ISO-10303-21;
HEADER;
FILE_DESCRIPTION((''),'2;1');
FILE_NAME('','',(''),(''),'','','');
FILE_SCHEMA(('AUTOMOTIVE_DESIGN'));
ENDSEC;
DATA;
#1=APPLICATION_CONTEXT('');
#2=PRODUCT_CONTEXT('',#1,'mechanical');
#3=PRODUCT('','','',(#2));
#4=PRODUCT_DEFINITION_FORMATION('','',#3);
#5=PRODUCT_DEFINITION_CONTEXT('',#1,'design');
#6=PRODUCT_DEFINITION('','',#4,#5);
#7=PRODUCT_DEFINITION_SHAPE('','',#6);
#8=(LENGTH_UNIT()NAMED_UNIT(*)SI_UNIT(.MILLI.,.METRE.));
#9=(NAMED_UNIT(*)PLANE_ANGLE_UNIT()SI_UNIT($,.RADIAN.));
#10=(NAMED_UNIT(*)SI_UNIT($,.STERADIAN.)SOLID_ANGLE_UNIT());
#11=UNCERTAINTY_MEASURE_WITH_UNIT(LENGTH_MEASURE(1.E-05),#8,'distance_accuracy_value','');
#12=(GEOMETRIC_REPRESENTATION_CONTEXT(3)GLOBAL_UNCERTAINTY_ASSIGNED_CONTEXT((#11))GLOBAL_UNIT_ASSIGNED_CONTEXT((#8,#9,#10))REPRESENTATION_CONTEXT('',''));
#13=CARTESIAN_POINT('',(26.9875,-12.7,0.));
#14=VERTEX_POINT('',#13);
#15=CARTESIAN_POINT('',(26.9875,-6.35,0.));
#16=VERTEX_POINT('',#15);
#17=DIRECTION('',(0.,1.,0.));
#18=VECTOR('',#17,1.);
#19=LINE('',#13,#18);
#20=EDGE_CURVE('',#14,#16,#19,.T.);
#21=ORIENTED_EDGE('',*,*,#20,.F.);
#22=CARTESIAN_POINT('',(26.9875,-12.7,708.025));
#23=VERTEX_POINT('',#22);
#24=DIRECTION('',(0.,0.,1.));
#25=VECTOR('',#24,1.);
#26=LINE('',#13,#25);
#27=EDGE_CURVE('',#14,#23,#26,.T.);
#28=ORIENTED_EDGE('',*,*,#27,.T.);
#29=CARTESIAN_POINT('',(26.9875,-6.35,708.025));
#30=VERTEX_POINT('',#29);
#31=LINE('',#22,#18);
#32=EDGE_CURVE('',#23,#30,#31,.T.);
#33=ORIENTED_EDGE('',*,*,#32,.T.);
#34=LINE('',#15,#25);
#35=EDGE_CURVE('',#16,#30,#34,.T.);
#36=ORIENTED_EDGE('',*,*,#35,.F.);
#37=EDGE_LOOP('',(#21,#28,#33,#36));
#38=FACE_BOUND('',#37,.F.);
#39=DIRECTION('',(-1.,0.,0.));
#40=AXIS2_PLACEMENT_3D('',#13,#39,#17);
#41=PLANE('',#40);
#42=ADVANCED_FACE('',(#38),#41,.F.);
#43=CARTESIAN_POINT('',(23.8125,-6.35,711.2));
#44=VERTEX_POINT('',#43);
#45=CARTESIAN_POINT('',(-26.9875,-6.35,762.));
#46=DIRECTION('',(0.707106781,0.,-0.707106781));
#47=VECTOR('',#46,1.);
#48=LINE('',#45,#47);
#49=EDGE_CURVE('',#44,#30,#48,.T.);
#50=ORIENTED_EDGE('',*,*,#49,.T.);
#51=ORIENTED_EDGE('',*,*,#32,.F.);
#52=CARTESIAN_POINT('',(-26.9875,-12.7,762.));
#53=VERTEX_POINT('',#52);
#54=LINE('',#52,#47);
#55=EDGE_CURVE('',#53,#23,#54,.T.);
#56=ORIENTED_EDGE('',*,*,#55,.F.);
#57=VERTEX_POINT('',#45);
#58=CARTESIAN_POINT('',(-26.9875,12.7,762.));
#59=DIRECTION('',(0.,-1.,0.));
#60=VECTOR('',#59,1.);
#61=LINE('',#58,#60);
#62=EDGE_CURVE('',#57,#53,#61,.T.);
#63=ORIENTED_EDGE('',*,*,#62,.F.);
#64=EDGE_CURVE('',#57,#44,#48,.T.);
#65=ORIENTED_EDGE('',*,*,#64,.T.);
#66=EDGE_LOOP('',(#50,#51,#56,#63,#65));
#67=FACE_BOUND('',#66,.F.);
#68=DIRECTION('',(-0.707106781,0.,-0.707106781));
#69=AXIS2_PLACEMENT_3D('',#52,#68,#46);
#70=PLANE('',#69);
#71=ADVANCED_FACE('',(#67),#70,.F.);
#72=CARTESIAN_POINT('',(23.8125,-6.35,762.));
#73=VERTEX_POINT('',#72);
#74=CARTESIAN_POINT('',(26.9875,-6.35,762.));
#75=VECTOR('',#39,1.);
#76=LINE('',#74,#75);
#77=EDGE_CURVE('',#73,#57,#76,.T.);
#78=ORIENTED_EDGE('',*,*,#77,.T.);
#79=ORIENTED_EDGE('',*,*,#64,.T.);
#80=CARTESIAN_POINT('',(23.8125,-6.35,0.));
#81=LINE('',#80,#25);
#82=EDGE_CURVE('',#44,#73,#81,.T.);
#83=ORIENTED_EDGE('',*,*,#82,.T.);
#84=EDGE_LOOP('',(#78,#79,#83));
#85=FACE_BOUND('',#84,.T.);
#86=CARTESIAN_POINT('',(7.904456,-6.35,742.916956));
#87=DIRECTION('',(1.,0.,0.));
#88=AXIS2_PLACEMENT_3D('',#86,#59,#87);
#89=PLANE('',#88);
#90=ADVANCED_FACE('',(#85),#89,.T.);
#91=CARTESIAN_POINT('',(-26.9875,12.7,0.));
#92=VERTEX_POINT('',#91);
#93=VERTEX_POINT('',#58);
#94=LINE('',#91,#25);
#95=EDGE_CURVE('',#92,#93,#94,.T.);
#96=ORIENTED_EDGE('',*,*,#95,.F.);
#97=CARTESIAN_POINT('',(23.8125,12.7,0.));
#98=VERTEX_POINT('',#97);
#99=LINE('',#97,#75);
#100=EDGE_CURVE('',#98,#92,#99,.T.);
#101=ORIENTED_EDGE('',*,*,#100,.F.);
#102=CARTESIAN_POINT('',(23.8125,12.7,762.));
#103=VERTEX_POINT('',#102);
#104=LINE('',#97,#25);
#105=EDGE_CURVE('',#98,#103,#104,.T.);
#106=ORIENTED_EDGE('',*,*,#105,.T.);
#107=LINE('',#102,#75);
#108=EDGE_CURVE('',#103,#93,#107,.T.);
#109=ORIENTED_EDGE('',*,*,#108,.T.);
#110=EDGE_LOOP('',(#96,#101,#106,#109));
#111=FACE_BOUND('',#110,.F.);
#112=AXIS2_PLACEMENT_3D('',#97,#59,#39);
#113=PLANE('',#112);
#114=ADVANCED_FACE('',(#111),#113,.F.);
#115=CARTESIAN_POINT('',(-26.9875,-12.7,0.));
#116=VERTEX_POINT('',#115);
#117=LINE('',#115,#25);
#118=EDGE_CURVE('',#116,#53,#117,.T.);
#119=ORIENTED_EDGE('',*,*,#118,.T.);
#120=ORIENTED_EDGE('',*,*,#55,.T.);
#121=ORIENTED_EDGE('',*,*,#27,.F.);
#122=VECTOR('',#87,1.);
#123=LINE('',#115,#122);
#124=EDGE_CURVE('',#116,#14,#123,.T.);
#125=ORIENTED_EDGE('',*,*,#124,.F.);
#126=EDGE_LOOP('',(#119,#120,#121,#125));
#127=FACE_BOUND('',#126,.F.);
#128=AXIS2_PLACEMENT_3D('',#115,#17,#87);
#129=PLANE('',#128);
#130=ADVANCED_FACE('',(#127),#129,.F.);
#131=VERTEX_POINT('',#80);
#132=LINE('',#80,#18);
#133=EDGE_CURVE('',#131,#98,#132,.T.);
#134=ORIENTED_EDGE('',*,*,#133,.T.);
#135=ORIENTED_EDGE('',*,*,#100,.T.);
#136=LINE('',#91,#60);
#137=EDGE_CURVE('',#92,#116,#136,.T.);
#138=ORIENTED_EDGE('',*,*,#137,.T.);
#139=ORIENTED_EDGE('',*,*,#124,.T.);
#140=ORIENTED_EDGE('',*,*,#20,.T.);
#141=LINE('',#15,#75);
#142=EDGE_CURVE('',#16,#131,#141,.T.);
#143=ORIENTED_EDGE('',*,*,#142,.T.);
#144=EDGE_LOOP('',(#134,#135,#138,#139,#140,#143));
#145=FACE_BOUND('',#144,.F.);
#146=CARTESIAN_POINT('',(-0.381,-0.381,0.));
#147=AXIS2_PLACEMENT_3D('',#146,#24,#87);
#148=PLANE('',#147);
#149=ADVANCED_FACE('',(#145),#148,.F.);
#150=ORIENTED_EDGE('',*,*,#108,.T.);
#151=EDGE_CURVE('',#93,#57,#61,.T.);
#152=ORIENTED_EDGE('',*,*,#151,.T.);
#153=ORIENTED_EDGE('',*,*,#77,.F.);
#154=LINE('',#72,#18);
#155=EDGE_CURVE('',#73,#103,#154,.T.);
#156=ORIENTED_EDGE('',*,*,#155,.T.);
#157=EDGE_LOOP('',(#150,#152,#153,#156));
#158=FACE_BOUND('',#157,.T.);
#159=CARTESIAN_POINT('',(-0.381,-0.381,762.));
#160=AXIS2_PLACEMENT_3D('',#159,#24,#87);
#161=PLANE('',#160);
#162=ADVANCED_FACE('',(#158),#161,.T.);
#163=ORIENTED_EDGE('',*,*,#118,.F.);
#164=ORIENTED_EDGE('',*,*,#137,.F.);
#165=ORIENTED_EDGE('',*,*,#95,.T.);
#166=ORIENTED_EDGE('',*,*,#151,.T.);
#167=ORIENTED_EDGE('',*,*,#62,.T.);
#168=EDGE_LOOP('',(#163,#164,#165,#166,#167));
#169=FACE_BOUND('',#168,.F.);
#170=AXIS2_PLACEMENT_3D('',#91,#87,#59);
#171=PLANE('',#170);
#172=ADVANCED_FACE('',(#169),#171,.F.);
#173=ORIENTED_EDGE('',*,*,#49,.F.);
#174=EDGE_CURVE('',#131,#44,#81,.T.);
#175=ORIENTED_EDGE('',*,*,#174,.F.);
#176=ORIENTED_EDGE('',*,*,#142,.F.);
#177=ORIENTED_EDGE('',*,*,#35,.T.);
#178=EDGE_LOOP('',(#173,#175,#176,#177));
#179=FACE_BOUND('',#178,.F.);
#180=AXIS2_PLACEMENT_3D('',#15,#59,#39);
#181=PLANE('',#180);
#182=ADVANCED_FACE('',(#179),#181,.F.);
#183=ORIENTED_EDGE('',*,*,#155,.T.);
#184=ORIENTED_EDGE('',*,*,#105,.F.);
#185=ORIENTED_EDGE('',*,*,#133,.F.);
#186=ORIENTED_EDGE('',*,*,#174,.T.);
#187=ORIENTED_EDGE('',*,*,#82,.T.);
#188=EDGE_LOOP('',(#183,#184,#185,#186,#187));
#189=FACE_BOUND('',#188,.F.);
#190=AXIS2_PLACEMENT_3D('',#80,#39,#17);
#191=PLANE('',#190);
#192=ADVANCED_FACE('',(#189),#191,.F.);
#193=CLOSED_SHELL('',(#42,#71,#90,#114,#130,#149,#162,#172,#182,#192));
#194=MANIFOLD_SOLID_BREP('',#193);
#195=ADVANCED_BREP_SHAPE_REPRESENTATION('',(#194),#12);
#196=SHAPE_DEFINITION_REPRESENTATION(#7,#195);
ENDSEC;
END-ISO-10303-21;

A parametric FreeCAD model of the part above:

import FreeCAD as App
import Part
import Sketcher

V = App.Vector
Q = App.Units.Quantity


def add_polygon(sketch, points):
    """Adds a closed chain of lines whose ends are joined by coincident constraints."""
    first, n = sketch.GeometryCount, len(points)
    for a, b in zip(points, points[1:] + points[:1]):
        sketch.addGeometry(Part.LineSegment(App.Vector(*a, 0), App.Vector(*b, 0)), False)
    for i in range(n):
        sketch.addConstraint(Sketcher.Constraint("Coincident", first + i, 2, first + (i + 1) % n, 1))

doc = App.newDocument("Part")
body = doc.addObject("PartDesign::Body", "Body")

# Sketch on XY plane
sketch1 = doc.addObject("Sketcher::SketchObject", "Sketch")
body.addObject(sketch1)
sketch1.AttachmentSupport = (doc.XY_Plane, [""])
sketch1.MapMode = "FlatFace"
add_polygon(sketch1, [(23.8125, -6.35), (23.8125, 12.7), (-26.9875, 12.7), (-26.9875, -12.7), (26.9875, -12.7), (26.9875, -6.35)])  # lines 0-5
sketch1.addConstraint(Sketcher.Constraint("Vertical", 0))
sketch1.addConstraint(Sketcher.Constraint("Horizontal", 1))
sketch1.addConstraint(Sketcher.Constraint("Vertical", 2))
sketch1.addConstraint(Sketcher.Constraint("Horizontal", 3))
sketch1.addConstraint(Sketcher.Constraint("Vertical", 4))
sketch1.addConstraint(Sketcher.Constraint("Horizontal", 5))
sketch1.addConstraint(Sketcher.Constraint("Symmetric", 1, 2, 3, 2, -1, 1))
sketch1.addConstraint(Sketcher.Constraint("DistanceX", 1, 2, 1, 1, Q("2 in")))
sketch1.addConstraint(Sketcher.Constraint("DistanceY", 2, 2, 2, 1, Q("1 in")))
sketch1.addConstraint(Sketcher.Constraint("DistanceY", 0, 1, 0, 2, Q("0.75 in")))
sketch1.addConstraint(Sketcher.Constraint("DistanceX", 3, 1, 3, 2, Q("2.125 in")))
pad1 = doc.addObject("PartDesign::Pad", "Pad")
body.addObject(pad1)
pad1.Profile = sketch1
pad1.Length = Q("30 in")

# Sketch on XZ plane
sketch2 = doc.addObject("Sketcher::SketchObject", "Sketch001")
body.addObject(sketch2)
sketch2.AttachmentSupport = (doc.XZ_Plane, [""])
sketch2.MapMode = "FlatFace"
sketch2.AttachmentOffset = App.Placement(V(0, 0, 0.5 * 25.4), App.Rotation())
add_polygon(sketch2, [(26.9875, 762), (-26.9875, 762), (26.9875, 708.025)])  # lines 0-2
sketch2.addConstraint(Sketcher.Constraint("Horizontal", 0))
sketch2.addConstraint(Sketcher.Constraint("Vertical", 2))
sketch2.addConstraint(Sketcher.Constraint("Equal", 0, 2))
sketch2.addConstraint(Sketcher.Constraint("DistanceY", -1, 1, 0, 2, Q("30 in")))
sketch2.addConstraint(Sketcher.Constraint("DistanceX", 0, 2, 0, 1, Q("2.125 in")))
sketch2.addConstraint(Sketcher.Constraint("DistanceX", 0, 2, -1, 1, Q("1.0625 in")))
pocket1 = doc.addObject("PartDesign::Pocket", "Pocket")
body.addObject(pocket1)
pocket1.Profile = sketch2
pocket1.Length = Q("0.25 in")

doc.recompute()
